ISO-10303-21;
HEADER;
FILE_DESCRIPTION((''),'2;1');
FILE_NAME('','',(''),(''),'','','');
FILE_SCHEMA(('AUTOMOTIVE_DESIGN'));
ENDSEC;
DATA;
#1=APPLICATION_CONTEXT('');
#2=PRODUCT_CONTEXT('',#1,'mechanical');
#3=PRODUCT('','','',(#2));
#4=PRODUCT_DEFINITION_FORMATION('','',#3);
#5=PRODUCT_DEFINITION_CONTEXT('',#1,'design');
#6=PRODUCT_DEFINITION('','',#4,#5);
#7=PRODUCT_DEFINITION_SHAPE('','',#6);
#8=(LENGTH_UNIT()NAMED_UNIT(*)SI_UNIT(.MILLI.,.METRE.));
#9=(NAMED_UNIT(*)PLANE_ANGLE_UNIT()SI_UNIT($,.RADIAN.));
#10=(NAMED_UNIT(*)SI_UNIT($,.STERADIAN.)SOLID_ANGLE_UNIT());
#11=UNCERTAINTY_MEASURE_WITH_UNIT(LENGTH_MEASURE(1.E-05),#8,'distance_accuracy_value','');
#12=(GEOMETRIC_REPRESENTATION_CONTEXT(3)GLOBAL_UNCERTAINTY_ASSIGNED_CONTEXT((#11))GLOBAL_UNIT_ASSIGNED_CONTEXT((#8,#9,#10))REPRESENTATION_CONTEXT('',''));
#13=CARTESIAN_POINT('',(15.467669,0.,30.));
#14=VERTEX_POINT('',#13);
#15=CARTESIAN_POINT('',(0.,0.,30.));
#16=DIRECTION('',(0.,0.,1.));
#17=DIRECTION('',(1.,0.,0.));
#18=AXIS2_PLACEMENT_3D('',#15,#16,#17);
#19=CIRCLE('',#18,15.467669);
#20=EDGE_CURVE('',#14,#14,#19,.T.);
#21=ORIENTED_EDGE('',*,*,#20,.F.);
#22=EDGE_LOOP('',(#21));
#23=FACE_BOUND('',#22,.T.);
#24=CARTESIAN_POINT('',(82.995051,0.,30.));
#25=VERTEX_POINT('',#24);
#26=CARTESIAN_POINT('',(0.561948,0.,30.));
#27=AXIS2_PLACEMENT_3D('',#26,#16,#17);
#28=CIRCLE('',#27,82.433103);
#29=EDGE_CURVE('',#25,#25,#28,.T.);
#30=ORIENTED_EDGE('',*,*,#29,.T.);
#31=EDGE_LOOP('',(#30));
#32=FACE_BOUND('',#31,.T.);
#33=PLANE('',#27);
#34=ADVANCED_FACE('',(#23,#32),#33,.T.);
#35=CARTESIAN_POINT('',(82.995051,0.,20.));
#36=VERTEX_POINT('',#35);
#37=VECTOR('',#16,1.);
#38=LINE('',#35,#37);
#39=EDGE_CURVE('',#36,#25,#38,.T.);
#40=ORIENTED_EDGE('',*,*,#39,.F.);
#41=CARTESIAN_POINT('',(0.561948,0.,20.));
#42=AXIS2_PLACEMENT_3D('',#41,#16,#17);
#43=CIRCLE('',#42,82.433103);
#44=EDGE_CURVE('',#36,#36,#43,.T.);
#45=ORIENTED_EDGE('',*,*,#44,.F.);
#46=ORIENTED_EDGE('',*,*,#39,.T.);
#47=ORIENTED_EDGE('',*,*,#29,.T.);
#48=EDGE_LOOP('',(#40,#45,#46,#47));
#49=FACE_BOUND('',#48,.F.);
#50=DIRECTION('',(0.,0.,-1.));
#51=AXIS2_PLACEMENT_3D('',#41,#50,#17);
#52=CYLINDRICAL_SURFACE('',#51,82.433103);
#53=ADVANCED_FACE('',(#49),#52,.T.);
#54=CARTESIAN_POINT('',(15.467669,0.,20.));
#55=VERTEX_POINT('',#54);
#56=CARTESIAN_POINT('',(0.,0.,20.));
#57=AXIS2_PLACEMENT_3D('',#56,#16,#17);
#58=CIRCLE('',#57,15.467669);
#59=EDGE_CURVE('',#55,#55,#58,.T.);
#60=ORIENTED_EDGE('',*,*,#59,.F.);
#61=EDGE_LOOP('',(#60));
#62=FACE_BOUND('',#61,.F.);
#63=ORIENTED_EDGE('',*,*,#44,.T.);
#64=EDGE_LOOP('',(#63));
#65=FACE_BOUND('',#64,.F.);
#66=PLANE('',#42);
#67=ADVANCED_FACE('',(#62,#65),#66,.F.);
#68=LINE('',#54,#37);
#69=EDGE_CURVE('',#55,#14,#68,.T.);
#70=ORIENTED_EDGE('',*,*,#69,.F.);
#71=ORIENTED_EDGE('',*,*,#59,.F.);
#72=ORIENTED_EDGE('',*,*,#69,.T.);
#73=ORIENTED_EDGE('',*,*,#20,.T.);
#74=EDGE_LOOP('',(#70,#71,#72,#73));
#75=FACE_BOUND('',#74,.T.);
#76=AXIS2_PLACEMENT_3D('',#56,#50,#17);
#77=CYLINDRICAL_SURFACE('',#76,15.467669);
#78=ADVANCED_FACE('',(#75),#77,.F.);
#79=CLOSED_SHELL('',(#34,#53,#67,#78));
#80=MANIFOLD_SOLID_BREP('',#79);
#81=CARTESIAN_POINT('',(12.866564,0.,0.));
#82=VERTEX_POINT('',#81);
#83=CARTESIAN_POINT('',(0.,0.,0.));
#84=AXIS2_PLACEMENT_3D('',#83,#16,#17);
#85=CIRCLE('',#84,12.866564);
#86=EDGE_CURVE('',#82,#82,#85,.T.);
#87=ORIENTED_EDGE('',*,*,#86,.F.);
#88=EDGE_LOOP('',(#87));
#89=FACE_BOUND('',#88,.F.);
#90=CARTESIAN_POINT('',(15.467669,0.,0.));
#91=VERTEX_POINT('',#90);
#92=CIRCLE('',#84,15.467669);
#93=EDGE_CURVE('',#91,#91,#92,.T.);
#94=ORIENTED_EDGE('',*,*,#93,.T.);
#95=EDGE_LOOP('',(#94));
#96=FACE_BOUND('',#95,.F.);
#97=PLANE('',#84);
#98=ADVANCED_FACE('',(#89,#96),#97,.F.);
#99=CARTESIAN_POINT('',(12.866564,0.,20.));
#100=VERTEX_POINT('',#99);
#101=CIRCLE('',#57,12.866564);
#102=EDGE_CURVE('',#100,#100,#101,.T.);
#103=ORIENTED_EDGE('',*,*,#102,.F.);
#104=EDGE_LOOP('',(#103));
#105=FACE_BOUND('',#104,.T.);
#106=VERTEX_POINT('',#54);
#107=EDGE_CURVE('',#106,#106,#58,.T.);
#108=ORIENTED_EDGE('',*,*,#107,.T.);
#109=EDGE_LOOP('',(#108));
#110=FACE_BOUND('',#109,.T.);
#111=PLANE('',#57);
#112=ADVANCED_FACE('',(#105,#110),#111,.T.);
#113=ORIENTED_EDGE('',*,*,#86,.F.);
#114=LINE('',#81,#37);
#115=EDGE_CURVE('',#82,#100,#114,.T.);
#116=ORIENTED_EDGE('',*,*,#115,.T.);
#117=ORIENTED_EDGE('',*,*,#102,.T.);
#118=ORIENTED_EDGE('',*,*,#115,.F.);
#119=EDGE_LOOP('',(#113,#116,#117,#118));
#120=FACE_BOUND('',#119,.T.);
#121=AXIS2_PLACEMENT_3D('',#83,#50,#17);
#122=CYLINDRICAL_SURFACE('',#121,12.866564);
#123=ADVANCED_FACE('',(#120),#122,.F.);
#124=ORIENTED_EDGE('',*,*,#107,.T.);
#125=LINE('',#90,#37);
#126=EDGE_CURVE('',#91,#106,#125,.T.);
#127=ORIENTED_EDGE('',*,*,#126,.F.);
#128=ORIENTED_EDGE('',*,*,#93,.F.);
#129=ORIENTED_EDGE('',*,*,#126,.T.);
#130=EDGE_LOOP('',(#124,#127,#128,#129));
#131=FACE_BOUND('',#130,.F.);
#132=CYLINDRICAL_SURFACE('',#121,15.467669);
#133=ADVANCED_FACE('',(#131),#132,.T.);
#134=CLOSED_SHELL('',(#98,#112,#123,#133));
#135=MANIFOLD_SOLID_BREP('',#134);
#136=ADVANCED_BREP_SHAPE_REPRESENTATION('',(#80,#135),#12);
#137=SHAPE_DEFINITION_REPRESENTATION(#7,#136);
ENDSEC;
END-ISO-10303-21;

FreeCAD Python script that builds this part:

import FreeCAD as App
import Part
import Sketcher

V = App.Vector
Q = App.Units.Quantity

doc = App.newDocument("Part")
body = doc.addObject("PartDesign::Body", "Body")

# Sketch on XY plane
sketch1 = body.newObject("Sketcher::SketchObject", "Sketch")
sketch1.AttachmentSupport = (doc.getObject("XY_Plane"), [""])
sketch1.MapMode = "FlatFace"
sketch1.addGeometry(Part.Circle(V(0, 0, 0), V(0, 0, 1), 15), False)
sketch1.addGeometry(Part.Circle(V(0, 0, 0), V(0, 0, 1), 13), False)
sketch1.addConstraint(Sketcher.Constraint("Coincident", 0, 3, -1, 1))
sketch1.addConstraint(Sketcher.Constraint("Coincident", 1, 3, -1, 1))
sketch1.addConstraint(Sketcher.Constraint("Diameter", 0, Q("30.935338 mm")))
sketch1.addConstraint(Sketcher.Constraint("Diameter", 1, Q("25.733128 mm")))
pad1 = body.newObject("PartDesign::Pad", "Pad")
pad1.Profile = sketch1
pad1.Length = 20
body2 = doc.addObject("PartDesign::Body", "Body001")

# Sketch on XY plane
sketch2 = body2.newObject("Sketcher::SketchObject", "Sketch001")
sketch2.AttachmentSupport = (doc.getObject("XY_Plane001"), [""])
sketch2.MapMode = "FlatFace"
sketch2.AttachmentOffset = App.Placement(V(0, 0, 20), App.Rotation())
sketch2.addGeometry(Part.Circle(V(1, 0, 0), V(0, 0, 1), 82), False)
sketch2.addGeometry(Part.Circle(V(0, 0, 0), V(0, 0, 1), 15), False)
sketch2.addConstraint(Sketcher.Constraint("Coincident", 1, 3, -1, 1))
sketch2.addConstraint(Sketcher.Constraint("PointOnObject", 0, 3, -1))
sketch2.addConstraint(Sketcher.Constraint("Diameter", 1, Q("30.935338 mm")))
sketch2.addConstraint(Sketcher.Constraint("Diameter", 0, Q("164.866206 mm")))
sketch2.addConstraint(Sketcher.Constraint("DistanceX", -1, 1, 0, 3, Q("0.561948 mm")))
pad2 = body2.newObject("PartDesign::Pad", "Pad001")
pad2.Profile = sketch2
pad2.Length = 10

doc.recompute()
